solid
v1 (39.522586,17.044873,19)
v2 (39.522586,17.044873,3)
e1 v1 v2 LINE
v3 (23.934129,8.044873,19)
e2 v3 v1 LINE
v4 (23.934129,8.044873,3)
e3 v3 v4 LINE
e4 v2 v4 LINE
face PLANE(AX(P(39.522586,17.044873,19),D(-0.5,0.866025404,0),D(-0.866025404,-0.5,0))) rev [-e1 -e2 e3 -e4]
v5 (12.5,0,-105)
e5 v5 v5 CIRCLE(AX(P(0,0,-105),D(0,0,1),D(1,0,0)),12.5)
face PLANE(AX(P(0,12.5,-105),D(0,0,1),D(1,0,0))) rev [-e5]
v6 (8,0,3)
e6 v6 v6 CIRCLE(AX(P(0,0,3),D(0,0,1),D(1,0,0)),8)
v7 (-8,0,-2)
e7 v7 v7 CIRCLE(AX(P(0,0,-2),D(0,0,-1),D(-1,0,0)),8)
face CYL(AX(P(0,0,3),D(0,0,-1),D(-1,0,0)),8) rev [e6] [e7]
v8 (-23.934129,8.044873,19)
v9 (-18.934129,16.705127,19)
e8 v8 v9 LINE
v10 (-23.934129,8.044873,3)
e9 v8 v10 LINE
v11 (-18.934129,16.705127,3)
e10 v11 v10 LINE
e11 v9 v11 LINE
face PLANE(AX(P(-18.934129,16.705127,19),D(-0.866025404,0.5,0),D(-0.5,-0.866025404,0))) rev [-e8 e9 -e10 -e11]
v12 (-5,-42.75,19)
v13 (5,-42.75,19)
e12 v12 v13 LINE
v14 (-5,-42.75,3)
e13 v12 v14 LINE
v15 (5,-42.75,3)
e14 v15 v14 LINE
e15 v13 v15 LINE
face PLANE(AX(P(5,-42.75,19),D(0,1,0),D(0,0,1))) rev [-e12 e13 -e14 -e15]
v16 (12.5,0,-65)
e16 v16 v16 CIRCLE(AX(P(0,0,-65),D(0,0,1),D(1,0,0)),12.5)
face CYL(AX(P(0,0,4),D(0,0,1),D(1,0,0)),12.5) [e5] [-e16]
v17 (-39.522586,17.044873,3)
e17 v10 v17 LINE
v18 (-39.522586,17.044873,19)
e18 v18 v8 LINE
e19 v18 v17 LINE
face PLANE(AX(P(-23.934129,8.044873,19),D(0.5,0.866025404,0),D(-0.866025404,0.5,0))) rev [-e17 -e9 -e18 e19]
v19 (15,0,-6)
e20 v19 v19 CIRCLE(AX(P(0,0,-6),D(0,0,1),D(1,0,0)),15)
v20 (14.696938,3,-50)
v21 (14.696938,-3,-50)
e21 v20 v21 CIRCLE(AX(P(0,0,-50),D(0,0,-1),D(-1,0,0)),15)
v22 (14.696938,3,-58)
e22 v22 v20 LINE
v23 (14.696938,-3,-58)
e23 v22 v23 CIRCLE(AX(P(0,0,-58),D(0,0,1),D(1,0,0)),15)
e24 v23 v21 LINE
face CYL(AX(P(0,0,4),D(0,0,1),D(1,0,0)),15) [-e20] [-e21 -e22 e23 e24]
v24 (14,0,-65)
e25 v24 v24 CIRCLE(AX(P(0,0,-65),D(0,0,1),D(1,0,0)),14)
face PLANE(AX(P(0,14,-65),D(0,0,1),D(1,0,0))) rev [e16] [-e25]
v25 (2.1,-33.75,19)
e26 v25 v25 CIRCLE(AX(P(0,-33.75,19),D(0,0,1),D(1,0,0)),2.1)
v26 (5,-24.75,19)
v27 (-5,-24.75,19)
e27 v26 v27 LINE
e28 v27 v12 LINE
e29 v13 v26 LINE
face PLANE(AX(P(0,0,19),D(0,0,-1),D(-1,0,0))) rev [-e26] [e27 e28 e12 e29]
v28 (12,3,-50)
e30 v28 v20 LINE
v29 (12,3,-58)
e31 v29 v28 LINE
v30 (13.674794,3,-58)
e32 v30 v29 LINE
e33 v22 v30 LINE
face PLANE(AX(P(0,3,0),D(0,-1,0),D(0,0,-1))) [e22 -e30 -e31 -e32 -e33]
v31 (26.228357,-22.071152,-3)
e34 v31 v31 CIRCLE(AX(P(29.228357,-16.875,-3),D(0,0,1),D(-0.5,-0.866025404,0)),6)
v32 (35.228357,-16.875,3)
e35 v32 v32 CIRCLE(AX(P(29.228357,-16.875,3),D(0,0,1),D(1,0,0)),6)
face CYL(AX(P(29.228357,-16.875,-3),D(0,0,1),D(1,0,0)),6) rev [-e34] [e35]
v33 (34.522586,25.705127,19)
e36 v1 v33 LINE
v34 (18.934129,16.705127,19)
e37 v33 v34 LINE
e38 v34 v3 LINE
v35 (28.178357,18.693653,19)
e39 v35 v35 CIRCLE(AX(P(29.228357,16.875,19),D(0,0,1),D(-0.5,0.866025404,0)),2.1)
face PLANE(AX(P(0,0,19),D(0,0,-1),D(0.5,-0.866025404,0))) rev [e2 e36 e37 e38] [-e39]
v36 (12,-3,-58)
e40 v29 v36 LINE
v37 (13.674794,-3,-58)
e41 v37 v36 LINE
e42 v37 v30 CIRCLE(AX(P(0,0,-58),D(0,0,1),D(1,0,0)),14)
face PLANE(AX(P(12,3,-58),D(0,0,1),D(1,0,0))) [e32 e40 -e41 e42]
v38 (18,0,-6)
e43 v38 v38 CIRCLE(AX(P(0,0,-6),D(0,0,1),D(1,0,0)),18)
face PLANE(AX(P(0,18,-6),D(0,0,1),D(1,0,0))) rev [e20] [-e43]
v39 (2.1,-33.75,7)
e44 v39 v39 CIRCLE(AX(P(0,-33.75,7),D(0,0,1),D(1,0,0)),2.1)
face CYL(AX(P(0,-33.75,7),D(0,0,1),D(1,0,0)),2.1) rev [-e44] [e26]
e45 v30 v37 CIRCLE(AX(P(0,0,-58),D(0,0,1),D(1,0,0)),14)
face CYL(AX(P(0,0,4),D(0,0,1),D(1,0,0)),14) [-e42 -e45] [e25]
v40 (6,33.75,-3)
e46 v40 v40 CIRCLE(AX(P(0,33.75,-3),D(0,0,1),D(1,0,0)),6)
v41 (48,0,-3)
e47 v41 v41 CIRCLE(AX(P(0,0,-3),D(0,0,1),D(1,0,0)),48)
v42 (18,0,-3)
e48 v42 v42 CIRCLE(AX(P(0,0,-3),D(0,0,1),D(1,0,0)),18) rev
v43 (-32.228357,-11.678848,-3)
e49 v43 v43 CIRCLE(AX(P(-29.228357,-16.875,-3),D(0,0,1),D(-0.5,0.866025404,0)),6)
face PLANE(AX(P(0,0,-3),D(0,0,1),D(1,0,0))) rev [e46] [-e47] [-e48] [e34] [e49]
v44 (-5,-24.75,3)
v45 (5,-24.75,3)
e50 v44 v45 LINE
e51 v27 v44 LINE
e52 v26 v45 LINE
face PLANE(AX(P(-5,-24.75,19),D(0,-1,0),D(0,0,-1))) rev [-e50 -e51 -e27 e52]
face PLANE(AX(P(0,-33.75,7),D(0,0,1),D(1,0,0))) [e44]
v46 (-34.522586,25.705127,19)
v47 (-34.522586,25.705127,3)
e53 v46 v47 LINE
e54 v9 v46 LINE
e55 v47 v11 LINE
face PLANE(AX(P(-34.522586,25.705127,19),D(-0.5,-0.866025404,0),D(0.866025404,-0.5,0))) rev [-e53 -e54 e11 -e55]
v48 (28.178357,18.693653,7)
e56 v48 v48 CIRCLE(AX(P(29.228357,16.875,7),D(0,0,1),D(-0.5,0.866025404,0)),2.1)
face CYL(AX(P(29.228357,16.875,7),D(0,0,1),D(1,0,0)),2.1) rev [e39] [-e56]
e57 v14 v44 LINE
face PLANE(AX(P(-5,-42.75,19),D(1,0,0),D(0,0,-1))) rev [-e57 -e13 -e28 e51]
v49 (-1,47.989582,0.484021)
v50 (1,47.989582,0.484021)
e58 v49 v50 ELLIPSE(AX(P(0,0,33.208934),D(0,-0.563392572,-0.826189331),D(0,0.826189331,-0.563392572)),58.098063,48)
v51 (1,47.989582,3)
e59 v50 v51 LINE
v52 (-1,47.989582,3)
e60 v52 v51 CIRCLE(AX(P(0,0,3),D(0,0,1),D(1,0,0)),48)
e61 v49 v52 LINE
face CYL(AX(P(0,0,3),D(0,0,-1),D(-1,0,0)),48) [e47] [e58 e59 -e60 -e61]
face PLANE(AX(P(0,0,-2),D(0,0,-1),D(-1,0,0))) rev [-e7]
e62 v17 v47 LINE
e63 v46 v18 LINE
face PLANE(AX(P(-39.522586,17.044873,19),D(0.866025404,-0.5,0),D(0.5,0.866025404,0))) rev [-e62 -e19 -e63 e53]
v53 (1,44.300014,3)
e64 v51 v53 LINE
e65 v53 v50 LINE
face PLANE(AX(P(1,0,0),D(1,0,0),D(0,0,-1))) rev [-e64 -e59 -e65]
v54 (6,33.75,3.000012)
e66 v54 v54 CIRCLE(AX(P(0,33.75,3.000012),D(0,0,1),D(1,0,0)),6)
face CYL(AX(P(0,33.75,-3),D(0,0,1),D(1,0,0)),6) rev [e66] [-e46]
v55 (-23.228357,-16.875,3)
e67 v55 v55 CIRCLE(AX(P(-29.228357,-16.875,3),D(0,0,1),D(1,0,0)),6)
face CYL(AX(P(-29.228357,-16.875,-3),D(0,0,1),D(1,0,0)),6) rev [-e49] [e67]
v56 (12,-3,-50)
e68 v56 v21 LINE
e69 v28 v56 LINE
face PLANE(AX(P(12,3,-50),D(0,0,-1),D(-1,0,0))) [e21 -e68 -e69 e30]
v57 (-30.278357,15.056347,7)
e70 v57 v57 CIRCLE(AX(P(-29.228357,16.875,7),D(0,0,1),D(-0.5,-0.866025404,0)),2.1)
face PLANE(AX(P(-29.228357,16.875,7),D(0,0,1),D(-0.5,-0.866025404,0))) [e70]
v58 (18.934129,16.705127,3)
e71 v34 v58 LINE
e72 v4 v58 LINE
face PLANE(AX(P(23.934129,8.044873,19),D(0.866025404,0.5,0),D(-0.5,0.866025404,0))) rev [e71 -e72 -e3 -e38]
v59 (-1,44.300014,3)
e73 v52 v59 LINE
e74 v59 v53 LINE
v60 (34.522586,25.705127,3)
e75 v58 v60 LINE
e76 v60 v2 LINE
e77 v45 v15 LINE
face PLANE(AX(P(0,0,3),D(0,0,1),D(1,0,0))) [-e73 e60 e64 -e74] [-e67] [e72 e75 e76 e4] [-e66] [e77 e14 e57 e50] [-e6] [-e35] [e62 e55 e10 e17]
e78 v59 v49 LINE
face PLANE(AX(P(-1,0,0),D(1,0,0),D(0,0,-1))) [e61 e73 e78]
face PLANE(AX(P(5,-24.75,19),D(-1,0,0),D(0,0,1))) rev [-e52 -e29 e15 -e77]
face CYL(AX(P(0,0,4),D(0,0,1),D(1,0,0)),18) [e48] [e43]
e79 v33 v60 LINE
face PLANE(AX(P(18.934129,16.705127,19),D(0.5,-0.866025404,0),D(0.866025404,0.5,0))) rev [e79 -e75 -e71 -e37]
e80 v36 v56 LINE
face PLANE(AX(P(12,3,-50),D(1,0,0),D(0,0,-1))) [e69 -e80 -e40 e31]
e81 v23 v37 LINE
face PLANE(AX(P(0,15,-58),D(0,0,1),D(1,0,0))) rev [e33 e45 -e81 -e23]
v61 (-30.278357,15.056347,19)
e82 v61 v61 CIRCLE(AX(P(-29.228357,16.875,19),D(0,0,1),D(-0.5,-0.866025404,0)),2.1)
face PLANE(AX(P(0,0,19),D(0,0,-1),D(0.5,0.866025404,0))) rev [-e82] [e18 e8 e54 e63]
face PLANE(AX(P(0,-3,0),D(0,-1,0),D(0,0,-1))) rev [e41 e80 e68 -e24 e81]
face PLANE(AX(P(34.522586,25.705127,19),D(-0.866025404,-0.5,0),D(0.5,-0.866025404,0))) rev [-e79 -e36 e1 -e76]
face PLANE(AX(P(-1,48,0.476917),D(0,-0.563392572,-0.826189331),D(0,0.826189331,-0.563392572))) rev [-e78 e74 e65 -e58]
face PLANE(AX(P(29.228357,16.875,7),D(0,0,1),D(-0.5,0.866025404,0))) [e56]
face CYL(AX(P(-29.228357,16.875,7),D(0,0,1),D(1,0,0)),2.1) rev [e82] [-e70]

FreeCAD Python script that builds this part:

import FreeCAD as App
import Part
import Sketcher
from FreeCAD import Vector


def add_polygon(sketch, points):
    """Adds a closed chain of lines whose ends are joined by coincident constraints."""
    first, n = sketch.GeometryCount, len(points)
    for a, b in zip(points, points[1:] + points[:1]):
        sketch.addGeometry(Part.LineSegment(App.Vector(*a, 0), App.Vector(*b, 0)), False)
    for i in range(n):
        sketch.addConstraint(Sketcher.Constraint("Coincident", first + i, 2, first + (i + 1) % n, 1))

doc = App.newDocument("Part")
body = doc.addObject("PartDesign::Body", "Body")

sketch1 = body.newObject("Sketcher::SketchObject", "Sketch")
sketch1.AttachmentSupport = (doc.getObject("XY_Plane"), [""])
sketch1.MapMode = "FlatFace"
sketch1.addGeometry([
    Part.Circle(Vector(0, 0, 0), Vector(0, 0, 1), 48),
    Part.Circle(Vector(0, 0, 0), Vector(0, 0, 1), 8),
], False)
sketch1.addConstraint([
    Sketcher.Constraint("Coincident", 0, 3, -1, 1),
    Sketcher.Constraint("Coincident", 1, 3, -1, 1),
    Sketcher.Constraint("Diameter", 0, 96.0),
    Sketcher.Constraint("Diameter", 1, 16.0),
])
pad1 = body.newObject("PartDesign::Pad", "Pad")
pad1.Profile = sketch1
pad1.Length = 6
pad1.Midplane = True

sketch2 = body.newObject("Sketcher::SketchObject", "Sketch001")
sketch2.AttachmentSupport = (doc.getObject("XY_Plane"), [""])
sketch2.MapMode = "FlatFace"
sketch2.AttachmentOffset = App.Placement(Vector(0, 0, 3), App.Rotation())
sketch2.addGeometry(Part.Circle(Vector(0, 34, 0), Vector(0, 0, 1), 6), False)
sketch2.addConstraint([
    Sketcher.Constraint("PointOnObject", 0, 3, -2),
    Sketcher.Constraint("Diameter", 0, 12.0),
    Sketcher.Constraint("DistanceY", -1, 1, 0, 3, 33.75),
])
pocket1 = body.newObject("PartDesign::Pocket", "Pocket")
pocket1.Profile = sketch2
pocket1.Length = 138.2938
pocket1.Midplane = True
doc.recompute()

polarpattern = body.newObject("PartDesign::PolarPattern", "PolarPattern")
polarpattern.Originals = [pocket1]
polarpattern.Axis = (doc.getObject("Z_Axis"), [""])
polarpattern.Angle = 360
polarpattern.Occurrences = 3
body.Tip = polarpattern

sketch3 = body.newObject("Sketcher::SketchObject", "Sketch002")
sketch3.AttachmentSupport = (doc.getObject("YZ_Plane"), [""])
sketch3.MapMode = "FlatFace"
add_polygon(sketch3, [(44.3, 3), (48, 0.5), (48, 3)])
sketch3.addConstraint([
    Sketcher.Constraint("Vertical", 1),
    Sketcher.Constraint("Horizontal", 2),
    Sketcher.Constraint("DistanceX", -1, 1, 0, 2, 48.0),
    Sketcher.Constraint("DistanceY", -1, 1, 1, 2, 3.0),
    Sketcher.Constraint("DistanceX", 2, 2, 2, 1, 3.699986),
    Sketcher.Constraint("DistanceY", 1, 1, 1, 2, 2.523083),
])
pocket2 = body.newObject("PartDesign::Pocket", "Pocket001")
pocket2.Profile = sketch3
pocket2.Length = 2
pocket2.Midplane = True

sketch4 = body.newObject("Sketcher::SketchObject", "Sketch003")
sketch4.AttachmentSupport = (doc.getObject("XY_Plane"), [""])
sketch4.MapMode = "FlatFace"
add_polygon(sketch4, [(-5, -25), (-5, -43), (5, -43), (5, -25)])
sketch4.addConstraint([
    Sketcher.Constraint("Vertical", 0),
    Sketcher.Constraint("Horizontal", 1),
    Sketcher.Constraint("Vertical", 2),
    Sketcher.Constraint("Horizontal", 3),
    Sketcher.Constraint("DistanceX", 1, 1, 1, 2, 10.0),
    Sketcher.Constraint("DistanceY", 0, 2, 0, 1, 18.0),
    Sketcher.Constraint("DistanceX", 0, 2, -1, 1, 5.0),
    Sketcher.Constraint("DistanceY", 0, 2, -1, 1, 42.75),
])
pad2 = body.newObject("PartDesign::Pad", "Pad001")
pad2.Profile = sketch4
pad2.Length = 19

sketch5 = body.newObject("Sketcher::SketchObject", "Sketch004")
sketch5.AttachmentSupport = (doc.getObject("XY_Plane"), [""])
sketch5.MapMode = "FlatFace"
sketch5.AttachmentOffset = App.Placement(Vector(0, 0, 19), App.Rotation())
sketch5.addGeometry(Part.Circle(Vector(0, -33.8, 0), Vector(0, 0, 1), 2.1), False)
sketch5.addConstraint([
    Sketcher.Constraint("PointOnObject", 0, 3, -2),
    Sketcher.Constraint("Diameter", 0, 4.2),
    Sketcher.Constraint("DistanceY", 0, 3, -1, 1, 33.75),
])
pocket3 = body.newObject("PartDesign::Pocket", "Pocket002")
pocket3.Profile = sketch5
pocket3.Length = 12
doc.recompute()

polarpattern2 = body.newObject("PartDesign::PolarPattern", "PolarPattern001")
polarpattern2.Originals = [pad2]
polarpattern2.Axis = (doc.getObject("Z_Axis"), [""])
polarpattern2.Angle = 360
polarpattern2.Occurrences = 3
body.Tip = polarpattern2
doc.recompute()

polarpattern3 = body.newObject("PartDesign::PolarPattern", "PolarPattern002")
polarpattern3.Originals = [pocket3]
polarpattern3.Axis = (doc.getObject("Z_Axis"), [""])
polarpattern3.Angle = 360
polarpattern3.Occurrences = 3
body.Tip = polarpattern3

sketch6 = body.newObject("Sketcher::SketchObject", "Sketch005")
sketch6.AttachmentSupport = (doc.getObject("YZ_Plane"), [""])
sketch6.MapMode = "FlatFace"
add_polygon(sketch6, [(18, -2), (0, -2), (0, -105), (12.5, -105), (12.5, -65), (14, -65), (14, -58), (15, -58), (15, -6), (18, -6)])
sketch6.addConstraint([
    Sketcher.Constraint("Horizontal", 0),
    Sketcher.Constraint("Vertical", 1),
    Sketcher.Constraint("Horizontal", 2),
    Sketcher.Constraint("Vertical", 3),
    Sketcher.Constraint("Horizontal", 4),
    Sketcher.Constraint("Vertical", 5),
    Sketcher.Constraint("Horizontal", 6),
    Sketcher.Constraint("Vertical", 7),
    Sketcher.Constraint("Horizontal", 8),
    Sketcher.Constraint("Vertical", 9),
    Sketcher.Constraint("PointOnObject", 0, 2, -2),
    Sketcher.Constraint("DistanceX", 0, 2, 0, 1, 18.0),
    Sketcher.Constraint("DistanceX", 6, 1, 6, 2, 1.0),
    Sketcher.Constraint("DistanceX", 8, 1, 8, 2, 3.0),
    Sketcher.Constraint("DistanceY", 1, 2, 1, 1, 103.0),
    Sketcher.Constraint("DistanceY", 3, 1, 3, 2, 40.0),
    Sketcher.Constraint("DistanceY", 5, 1, 5, 2, 7.0),
    Sketcher.Constraint("DistanceY", 7, 1, 7, 2, 52.0),
    Sketcher.Constraint("DistanceX", 2, 1, 2, 2, 12.5),
    Sketcher.Constraint("DistanceY", 0, 2, -1, 1, 2.0),
])
revolution = body.newObject("PartDesign::Revolution", "Revolution")
revolution.Profile = sketch6
revolution.ReferenceAxis = (sketch6, ["V_Axis"])
revolution.Angle = 360

sketch7 = body.newObject("Sketcher::SketchObject", "Sketch006")
sketch7.AttachmentSupport = (doc.getObject("XZ_Plane"), [""])
sketch7.MapMode = "FlatFace"
add_polygon(sketch7, [(12, -58), (12, -50), (16.5, -50), (16.5, -58)])
sketch7.addConstraint([
    Sketcher.Constraint("Vertical", 0),
    Sketcher.Constraint("Horizontal", 1),
    Sketcher.Constraint("Vertical", 2),
    Sketcher.Constraint("Horizontal", 3),
    Sketcher.Constraint("DistanceY", 0, 1, 0, 2, 8.0),
    Sketcher.Constraint("DistanceX", 1, 1, 1, 2, 4.5),
    Sketcher.Constraint("DistanceX", -1, 1, 0, 2, 12.0),
    Sketcher.Constraint("DistanceY", 0, 2, -1, 1, 50.0),
])
pocket4 = body.newObject("PartDesign::Pocket", "Pocket003")
pocket4.Profile = sketch7
pocket4.Length = 6
pocket4.Midplane = True

doc.recompute()
